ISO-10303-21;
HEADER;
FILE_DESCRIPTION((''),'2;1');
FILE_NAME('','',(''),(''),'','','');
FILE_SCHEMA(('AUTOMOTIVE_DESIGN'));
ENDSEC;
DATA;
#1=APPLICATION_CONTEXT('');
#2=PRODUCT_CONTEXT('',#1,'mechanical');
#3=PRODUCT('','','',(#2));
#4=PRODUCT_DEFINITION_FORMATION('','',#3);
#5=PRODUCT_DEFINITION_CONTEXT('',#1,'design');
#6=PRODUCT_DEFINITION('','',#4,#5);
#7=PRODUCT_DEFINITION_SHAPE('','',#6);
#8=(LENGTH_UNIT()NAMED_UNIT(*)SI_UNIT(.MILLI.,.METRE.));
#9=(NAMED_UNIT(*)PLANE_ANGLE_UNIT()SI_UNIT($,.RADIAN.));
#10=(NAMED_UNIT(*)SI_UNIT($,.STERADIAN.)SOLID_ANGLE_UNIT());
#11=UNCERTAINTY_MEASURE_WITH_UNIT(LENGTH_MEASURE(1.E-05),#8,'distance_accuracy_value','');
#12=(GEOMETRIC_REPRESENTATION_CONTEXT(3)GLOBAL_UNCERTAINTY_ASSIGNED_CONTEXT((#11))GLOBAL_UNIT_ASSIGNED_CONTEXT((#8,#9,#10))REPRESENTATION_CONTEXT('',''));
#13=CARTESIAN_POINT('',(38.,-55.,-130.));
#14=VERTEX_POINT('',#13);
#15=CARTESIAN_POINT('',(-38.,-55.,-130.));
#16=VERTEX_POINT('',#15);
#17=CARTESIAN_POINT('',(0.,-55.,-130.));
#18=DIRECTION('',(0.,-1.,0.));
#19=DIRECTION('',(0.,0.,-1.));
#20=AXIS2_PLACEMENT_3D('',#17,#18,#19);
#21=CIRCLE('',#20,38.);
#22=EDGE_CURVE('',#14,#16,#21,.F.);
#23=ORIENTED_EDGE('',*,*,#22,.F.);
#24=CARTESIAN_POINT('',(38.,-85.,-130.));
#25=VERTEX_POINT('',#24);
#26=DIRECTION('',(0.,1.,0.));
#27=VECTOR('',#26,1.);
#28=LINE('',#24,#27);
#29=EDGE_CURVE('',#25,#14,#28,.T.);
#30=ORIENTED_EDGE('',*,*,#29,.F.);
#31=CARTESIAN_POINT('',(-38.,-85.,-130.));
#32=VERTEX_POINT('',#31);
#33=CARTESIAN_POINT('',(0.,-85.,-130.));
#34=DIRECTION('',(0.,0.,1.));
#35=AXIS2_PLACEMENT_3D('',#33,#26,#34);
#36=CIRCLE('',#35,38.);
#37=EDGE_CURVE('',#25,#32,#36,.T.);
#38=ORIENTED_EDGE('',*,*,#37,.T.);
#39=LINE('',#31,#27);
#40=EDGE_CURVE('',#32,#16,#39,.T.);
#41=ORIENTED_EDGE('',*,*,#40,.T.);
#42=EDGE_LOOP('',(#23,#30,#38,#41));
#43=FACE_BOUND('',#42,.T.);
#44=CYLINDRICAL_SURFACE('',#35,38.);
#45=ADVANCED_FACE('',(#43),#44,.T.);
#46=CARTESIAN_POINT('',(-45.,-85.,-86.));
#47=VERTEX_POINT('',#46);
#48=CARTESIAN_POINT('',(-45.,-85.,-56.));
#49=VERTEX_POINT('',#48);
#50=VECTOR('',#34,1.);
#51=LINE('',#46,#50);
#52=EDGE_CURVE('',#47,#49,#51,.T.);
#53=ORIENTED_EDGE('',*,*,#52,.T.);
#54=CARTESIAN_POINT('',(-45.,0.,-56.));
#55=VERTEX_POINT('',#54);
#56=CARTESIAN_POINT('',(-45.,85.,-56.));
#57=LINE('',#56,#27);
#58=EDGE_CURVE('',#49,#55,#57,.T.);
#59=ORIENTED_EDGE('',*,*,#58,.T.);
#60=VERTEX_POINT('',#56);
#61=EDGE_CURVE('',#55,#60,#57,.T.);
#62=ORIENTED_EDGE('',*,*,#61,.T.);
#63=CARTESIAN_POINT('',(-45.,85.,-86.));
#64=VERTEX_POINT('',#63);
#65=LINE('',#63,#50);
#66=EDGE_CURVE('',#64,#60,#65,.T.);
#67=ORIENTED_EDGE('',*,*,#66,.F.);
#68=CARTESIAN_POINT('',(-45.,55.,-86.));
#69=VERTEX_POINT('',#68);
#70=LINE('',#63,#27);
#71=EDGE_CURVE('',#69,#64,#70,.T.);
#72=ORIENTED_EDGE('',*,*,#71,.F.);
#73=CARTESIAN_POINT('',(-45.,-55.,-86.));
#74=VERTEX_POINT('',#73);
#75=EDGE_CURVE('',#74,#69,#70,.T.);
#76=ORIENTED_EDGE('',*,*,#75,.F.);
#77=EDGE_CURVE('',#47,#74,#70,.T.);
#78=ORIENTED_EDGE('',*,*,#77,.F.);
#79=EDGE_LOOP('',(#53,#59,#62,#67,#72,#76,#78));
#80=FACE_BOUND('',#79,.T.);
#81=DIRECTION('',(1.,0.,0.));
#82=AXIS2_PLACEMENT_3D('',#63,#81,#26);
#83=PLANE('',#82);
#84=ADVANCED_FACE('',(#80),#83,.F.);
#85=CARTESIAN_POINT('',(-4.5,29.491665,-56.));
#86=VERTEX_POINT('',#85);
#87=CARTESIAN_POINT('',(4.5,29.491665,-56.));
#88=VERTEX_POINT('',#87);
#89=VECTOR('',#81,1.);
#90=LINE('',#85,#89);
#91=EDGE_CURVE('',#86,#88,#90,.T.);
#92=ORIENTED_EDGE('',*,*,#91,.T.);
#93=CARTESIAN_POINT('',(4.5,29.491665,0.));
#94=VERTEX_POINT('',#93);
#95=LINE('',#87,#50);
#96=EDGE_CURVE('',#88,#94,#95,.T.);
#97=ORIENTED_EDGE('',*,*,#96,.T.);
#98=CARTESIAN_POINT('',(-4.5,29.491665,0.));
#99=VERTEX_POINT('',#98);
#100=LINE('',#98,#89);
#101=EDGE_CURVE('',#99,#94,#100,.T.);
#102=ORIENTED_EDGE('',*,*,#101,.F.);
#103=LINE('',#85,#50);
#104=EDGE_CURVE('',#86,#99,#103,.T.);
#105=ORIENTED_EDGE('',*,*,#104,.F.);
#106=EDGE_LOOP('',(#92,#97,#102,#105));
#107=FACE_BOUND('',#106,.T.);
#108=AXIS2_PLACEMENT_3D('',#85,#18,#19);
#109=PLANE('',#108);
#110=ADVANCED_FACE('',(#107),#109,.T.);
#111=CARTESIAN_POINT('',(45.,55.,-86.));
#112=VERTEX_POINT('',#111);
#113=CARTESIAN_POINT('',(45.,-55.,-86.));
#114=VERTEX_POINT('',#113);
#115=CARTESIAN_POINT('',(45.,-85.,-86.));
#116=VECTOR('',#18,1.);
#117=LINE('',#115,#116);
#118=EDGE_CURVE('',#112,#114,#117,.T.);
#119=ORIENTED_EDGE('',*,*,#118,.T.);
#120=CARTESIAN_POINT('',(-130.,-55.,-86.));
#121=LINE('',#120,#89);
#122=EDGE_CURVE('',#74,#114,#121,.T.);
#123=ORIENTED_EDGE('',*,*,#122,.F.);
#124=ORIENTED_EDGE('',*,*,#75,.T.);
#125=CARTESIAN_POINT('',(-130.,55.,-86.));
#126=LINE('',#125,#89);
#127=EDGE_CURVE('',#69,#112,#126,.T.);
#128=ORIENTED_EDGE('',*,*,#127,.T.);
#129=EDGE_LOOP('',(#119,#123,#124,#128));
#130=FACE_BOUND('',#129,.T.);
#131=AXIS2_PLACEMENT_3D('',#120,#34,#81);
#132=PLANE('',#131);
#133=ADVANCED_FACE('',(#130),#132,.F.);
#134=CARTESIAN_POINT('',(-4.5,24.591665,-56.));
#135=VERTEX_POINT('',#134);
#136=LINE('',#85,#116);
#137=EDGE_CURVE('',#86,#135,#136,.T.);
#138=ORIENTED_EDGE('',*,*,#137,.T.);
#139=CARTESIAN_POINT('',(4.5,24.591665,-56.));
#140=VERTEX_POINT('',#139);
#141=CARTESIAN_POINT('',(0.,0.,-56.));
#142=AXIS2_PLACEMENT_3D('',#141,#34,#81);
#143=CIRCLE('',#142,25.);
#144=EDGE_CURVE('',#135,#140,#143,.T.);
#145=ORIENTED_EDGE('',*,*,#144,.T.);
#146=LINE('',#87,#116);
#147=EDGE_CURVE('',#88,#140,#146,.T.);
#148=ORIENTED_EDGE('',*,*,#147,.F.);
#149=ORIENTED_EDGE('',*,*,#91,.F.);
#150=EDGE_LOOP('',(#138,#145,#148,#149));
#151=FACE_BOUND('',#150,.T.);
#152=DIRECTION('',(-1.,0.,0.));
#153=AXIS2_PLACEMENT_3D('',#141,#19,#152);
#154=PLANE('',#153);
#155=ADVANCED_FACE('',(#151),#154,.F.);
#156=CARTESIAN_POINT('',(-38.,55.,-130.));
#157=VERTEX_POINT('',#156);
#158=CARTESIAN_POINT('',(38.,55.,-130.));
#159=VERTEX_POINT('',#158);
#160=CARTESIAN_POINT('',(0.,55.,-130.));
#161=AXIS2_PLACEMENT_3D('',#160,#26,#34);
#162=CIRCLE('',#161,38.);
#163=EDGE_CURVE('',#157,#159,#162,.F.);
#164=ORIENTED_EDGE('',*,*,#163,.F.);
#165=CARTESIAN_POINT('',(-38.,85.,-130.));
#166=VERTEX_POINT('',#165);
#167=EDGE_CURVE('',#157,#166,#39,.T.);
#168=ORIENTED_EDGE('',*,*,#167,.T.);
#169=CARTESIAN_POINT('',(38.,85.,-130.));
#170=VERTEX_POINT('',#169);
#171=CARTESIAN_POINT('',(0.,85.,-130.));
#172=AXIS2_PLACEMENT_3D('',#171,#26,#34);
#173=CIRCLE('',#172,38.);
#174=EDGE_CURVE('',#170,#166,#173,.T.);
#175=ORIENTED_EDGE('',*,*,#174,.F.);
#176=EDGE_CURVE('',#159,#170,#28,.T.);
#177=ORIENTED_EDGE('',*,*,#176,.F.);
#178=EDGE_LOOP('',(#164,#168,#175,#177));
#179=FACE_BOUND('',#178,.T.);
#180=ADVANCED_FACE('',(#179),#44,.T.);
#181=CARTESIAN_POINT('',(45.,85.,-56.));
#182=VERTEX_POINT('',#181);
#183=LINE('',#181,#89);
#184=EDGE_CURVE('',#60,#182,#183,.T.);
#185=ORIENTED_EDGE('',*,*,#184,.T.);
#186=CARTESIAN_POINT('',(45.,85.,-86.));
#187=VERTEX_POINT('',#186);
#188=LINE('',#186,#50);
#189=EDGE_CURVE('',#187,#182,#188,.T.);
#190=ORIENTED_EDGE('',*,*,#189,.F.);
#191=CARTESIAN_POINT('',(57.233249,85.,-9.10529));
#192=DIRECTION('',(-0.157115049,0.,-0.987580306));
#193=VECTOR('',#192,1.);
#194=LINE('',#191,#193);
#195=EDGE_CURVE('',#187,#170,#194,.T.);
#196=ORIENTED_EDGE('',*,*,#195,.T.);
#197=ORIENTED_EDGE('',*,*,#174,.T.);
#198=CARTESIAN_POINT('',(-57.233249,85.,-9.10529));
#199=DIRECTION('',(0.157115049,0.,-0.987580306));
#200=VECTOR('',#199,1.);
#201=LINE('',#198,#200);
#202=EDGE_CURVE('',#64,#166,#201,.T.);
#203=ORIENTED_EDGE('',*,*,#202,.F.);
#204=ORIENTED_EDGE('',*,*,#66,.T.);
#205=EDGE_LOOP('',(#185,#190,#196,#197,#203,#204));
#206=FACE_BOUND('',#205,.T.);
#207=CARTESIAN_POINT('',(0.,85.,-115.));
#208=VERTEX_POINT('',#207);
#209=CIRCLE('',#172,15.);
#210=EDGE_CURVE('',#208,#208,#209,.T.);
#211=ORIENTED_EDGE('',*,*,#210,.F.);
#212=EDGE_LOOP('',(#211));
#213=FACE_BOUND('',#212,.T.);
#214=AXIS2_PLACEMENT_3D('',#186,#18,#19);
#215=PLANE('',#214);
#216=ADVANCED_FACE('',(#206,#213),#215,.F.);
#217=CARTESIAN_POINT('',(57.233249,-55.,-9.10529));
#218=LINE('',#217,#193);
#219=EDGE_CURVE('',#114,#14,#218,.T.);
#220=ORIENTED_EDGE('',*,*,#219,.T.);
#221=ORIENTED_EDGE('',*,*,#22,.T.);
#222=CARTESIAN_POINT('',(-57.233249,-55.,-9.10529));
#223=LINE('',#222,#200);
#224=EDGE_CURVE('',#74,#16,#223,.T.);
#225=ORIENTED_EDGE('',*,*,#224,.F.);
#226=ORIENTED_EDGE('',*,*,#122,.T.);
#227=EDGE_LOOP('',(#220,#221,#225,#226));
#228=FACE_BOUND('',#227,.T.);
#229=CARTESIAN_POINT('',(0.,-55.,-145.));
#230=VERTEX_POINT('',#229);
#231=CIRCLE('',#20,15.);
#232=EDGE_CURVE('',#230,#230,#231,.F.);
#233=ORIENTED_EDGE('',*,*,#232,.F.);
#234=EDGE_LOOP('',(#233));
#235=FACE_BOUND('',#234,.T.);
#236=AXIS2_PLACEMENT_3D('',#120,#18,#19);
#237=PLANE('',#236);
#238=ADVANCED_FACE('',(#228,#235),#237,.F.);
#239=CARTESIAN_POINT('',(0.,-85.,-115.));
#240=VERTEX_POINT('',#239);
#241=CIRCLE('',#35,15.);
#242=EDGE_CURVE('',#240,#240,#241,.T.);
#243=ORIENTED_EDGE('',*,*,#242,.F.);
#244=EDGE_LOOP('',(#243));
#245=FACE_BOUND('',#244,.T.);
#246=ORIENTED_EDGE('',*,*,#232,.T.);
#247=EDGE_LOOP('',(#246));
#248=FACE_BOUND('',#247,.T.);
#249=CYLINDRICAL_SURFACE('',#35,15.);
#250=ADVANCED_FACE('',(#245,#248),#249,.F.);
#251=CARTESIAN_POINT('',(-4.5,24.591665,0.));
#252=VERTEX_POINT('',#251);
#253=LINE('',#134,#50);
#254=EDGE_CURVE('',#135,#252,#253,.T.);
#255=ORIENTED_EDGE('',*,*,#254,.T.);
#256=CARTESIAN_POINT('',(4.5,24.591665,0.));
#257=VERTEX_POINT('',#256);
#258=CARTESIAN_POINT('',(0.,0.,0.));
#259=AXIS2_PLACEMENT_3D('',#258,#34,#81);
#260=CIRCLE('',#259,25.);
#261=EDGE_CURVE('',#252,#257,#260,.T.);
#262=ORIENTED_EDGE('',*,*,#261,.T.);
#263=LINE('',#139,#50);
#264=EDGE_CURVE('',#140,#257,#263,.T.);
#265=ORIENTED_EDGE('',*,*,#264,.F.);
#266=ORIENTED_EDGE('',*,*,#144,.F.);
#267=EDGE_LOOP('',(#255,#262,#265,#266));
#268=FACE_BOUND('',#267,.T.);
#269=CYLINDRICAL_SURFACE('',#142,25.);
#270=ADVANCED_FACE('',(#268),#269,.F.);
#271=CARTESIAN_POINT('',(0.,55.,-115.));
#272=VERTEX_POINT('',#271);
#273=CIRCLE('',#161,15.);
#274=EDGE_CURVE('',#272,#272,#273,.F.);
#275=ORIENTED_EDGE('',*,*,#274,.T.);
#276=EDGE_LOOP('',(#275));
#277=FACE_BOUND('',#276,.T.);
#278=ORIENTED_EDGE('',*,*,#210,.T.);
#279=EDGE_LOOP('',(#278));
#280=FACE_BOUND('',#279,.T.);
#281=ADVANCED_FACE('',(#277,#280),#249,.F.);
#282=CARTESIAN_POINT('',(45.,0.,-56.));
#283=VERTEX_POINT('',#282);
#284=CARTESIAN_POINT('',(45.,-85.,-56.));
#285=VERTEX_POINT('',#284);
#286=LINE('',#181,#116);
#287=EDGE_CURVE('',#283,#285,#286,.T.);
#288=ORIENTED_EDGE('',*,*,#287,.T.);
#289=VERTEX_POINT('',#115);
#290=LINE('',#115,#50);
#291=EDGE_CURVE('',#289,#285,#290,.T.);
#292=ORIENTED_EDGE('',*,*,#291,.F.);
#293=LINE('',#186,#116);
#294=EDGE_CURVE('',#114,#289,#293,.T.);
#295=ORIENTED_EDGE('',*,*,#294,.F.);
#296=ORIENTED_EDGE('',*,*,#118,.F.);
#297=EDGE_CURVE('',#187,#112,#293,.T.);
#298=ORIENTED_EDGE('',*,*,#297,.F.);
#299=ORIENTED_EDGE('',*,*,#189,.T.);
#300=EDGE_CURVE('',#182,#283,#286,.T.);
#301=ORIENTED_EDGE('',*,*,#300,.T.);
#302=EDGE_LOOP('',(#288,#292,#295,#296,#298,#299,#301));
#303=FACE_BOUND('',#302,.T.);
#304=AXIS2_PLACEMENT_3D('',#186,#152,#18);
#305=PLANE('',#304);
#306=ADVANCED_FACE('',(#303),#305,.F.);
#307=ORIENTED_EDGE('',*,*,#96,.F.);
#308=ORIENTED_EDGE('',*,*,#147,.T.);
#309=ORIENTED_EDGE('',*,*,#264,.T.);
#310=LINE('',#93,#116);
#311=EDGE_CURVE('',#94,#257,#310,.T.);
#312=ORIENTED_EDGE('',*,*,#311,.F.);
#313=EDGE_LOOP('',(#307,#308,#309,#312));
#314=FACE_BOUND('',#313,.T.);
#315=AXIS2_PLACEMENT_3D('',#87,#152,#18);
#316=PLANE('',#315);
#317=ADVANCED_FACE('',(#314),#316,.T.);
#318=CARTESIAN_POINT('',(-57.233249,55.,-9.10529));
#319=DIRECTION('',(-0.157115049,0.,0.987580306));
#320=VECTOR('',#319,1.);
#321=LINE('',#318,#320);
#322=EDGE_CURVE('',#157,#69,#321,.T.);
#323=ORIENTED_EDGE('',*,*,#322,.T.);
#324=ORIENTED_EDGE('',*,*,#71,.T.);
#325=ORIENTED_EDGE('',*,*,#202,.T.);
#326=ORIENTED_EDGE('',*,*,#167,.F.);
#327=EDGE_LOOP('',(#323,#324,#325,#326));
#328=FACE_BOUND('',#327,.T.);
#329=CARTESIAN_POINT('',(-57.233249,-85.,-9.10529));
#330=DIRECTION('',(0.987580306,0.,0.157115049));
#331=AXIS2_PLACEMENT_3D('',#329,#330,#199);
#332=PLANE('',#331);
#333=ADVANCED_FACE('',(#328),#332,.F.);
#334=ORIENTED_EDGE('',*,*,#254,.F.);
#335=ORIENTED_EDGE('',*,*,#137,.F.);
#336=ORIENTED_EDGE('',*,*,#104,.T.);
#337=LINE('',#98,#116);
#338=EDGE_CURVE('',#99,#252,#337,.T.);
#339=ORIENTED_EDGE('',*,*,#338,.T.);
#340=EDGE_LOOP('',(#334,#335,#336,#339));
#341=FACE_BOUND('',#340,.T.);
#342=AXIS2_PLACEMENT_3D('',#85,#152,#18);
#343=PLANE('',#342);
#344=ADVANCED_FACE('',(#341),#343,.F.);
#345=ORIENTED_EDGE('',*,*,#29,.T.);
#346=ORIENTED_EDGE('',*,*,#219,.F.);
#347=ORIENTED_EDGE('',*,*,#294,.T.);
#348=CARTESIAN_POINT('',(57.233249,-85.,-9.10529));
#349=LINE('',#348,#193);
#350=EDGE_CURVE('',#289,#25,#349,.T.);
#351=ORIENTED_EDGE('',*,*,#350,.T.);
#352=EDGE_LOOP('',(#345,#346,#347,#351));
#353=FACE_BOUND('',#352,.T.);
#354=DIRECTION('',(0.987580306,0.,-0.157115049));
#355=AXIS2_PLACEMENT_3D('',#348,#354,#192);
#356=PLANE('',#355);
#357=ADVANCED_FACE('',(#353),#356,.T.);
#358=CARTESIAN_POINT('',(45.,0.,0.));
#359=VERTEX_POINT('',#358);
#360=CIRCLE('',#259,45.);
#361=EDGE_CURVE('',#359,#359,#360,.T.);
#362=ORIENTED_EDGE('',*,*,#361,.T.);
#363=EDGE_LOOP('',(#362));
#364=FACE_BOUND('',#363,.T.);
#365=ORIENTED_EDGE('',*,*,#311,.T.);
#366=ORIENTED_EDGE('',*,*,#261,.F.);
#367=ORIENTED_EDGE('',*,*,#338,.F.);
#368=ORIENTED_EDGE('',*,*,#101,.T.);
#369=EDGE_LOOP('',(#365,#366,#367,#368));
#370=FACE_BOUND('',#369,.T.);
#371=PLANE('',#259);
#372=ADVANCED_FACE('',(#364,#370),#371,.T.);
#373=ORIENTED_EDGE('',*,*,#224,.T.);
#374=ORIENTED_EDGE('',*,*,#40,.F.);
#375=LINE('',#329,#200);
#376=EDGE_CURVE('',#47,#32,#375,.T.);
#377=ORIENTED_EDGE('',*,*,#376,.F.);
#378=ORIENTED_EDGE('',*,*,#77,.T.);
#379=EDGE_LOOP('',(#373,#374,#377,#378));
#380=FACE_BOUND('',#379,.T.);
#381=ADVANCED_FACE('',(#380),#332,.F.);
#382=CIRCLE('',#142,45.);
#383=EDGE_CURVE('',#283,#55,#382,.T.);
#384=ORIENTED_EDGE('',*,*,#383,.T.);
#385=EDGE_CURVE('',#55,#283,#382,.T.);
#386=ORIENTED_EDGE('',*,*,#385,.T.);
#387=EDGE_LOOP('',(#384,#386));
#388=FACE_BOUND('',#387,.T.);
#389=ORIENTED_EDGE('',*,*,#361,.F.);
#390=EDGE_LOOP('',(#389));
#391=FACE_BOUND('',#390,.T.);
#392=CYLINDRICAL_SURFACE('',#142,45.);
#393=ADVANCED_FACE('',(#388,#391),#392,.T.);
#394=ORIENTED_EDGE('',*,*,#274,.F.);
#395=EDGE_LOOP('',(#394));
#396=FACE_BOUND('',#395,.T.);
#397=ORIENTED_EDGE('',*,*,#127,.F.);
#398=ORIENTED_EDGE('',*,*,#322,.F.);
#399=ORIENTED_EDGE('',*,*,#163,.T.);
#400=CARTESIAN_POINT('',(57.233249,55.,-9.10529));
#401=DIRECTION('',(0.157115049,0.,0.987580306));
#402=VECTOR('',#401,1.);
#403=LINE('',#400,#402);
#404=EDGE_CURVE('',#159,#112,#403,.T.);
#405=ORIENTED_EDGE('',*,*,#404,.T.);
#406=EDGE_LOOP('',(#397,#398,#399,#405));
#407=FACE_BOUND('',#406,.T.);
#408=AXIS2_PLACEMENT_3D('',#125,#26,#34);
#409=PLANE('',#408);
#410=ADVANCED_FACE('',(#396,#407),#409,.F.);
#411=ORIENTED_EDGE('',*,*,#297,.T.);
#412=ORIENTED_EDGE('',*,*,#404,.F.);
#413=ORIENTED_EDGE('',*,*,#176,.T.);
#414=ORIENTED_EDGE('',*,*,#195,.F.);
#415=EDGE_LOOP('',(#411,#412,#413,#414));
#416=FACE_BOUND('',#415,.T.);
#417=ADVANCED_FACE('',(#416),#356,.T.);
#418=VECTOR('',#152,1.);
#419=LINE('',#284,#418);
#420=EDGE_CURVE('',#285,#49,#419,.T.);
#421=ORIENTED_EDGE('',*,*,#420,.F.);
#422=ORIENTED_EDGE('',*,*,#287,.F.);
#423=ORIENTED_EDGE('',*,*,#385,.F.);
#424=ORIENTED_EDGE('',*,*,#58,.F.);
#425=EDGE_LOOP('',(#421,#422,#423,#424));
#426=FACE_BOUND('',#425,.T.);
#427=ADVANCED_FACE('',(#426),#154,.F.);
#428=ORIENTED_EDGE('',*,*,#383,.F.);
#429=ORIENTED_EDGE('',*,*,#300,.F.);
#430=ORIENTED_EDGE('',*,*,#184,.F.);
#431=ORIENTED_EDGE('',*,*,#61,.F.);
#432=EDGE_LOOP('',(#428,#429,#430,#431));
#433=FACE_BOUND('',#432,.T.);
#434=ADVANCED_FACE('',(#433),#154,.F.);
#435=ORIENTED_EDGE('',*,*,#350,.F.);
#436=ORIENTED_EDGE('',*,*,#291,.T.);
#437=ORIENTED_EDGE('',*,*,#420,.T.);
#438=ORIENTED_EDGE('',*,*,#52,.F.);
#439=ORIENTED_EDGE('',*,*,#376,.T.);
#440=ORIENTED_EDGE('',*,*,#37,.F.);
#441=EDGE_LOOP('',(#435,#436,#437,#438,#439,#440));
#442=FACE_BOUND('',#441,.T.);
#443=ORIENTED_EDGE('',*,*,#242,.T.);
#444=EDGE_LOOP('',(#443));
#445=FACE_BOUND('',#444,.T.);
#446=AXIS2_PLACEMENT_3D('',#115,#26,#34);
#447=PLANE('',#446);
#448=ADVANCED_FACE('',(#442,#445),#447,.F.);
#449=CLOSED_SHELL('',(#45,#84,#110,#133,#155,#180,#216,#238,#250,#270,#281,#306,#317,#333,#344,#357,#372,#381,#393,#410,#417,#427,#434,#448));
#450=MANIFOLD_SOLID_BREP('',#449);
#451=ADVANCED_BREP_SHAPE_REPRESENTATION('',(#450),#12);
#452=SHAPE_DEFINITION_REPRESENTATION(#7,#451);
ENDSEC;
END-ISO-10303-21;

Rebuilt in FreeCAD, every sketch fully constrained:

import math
import FreeCAD as App
import Part
import Sketcher

V = App.Vector
Q = App.Units.Quantity

doc = App.newDocument("Part")
body = doc.addObject("PartDesign::Body", "Body")

# Sketch on XY plane
sketch1 = body.newObject("Sketcher::SketchObject", "Sketch")
sketch1.AttachmentSupport = (doc.getObject("XY_Plane"), [""])
sketch1.MapMode = "FlatFace"
sketch1.addGeometry([
    Part.Circle(V(0, 0, 0), V(0, 0, 1), 45),  # 0
    Part.LineSegment(V(-4.5, 24.6, 0), V(-4.5, 29.5, 0)),  # 1
    Part.LineSegment(V(-4.5, 29.5, 0), V(4.5, 29.5, 0)),  # 2
    Part.LineSegment(V(4.5, 29.5, 0), V(4.5, 24.6, 0)),  # 3
    Part.ArcOfCircle(Part.Circle(V(0, 0, 0), V(0, 0, 1), 25), math.radians(100), math.radians(440)),  # 4
], False)
sketch1.addConstraint([
    Sketcher.Constraint("Coincident", 1, 2, 2, 1),
    Sketcher.Constraint("Coincident", 2, 2, 3, 1),
    Sketcher.Constraint("Coincident", 3, 2, 4, 2),
    Sketcher.Constraint("Coincident", 4, 1, 1, 1),
    Sketcher.Constraint("Vertical", 1),
    Sketcher.Constraint("Horizontal", 2),
    Sketcher.Constraint("Vertical", 3),
    Sketcher.Constraint("Coincident", 0, 3, -1, 1),
    Sketcher.Constraint("Coincident", 4, 3, -1, 1),
    Sketcher.Constraint("Horizontal", 3, 2, 4, 1),
    Sketcher.Constraint("Diameter", 0, Q("90 mm")),
    Sketcher.Constraint("Radius", 4, Q("25 mm")),
    Sketcher.Constraint("DistanceX", 2, 1, 2, 2, Q("9 mm")),
    Sketcher.Constraint("DistanceY", 1, 1, 1, 2, Q("4.9 mm")),
])
pad1 = body.newObject("PartDesign::Pad", "Pad")
pad1.Profile = sketch1
pad1.Length = 56
pad1.Reversed = True

# Sketch on XY plane
sketch2 = body.newObject("Sketcher::SketchObject", "Sketch001")
sketch2.AttachmentSupport = (doc.getObject("XY_Plane"), [""])
sketch2.MapMode = "FlatFace"
sketch2.AttachmentOffset = App.Placement(V(0, 0, -56), App.Rotation())
sketch2.addGeometry([
    Part.LineSegment(V(45, 85, 0), V(45, -85, 0)),
    Part.LineSegment(V(45, -85, 0), V(-45, -85, 0)),
    Part.LineSegment(V(-45, -85, 0), V(-45, 85, 0)),
    Part.LineSegment(V(-45, 85, 0), V(45, 85, 0)),
], False)
sketch2.addConstraint([
    Sketcher.Constraint("Coincident", 0, 2, 1, 1),
    Sketcher.Constraint("Coincident", 1, 2, 2, 1),
    Sketcher.Constraint("Coincident", 2, 2, 3, 1),
    Sketcher.Constraint("Coincident", 3, 2, 0, 1),
    Sketcher.Constraint("Vertical", 0),
    Sketcher.Constraint("Horizontal", 1),
    Sketcher.Constraint("Vertical", 2),
    Sketcher.Constraint("Horizontal", 3),
    Sketcher.Constraint("Symmetric", 0, 2, 2, 2, -1, 1),
    Sketcher.Constraint("DistanceX", 1, 2, 1, 1, Q("90 mm")),
    Sketcher.Constraint("DistanceY", 0, 2, 0, 1, Q("170 mm")),
])
pad2 = body.newObject("PartDesign::Pad", "Pad001")
pad2.Profile = sketch2
pad2.Length = 30
pad2.Reversed = True

# Sketch on XZ plane
sketch3 = body.newObject("Sketcher::SketchObject", "Sketch002")
sketch3.AttachmentSupport = (doc.getObject("XZ_Plane"), [""])
sketch3.MapMode = "FlatFace"
sketch3.AttachmentOffset = App.Placement(V(0, 0, -85), App.Rotation())
sketch3.addGeometry([
    Part.LineSegment(V(45, -86, 0), V(38, -130, 0)),  # 0
    Part.ArcOfCircle(Part.Circle(V(0, -130, 0), V(0, 0, 1), 38), math.radians(180), math.radians(360)),  # 1
    Part.LineSegment(V(-38, -130, 0), V(-45, -86, 0)),  # 2
    Part.LineSegment(V(-45, -86, 0), V(45, -86, 0)),  # 3
    Part.Circle(V(0, -130, 0), V(0, 0, 1), 15),  # 4
], False)
sketch3.addConstraint([
    Sketcher.Constraint("Coincident", 0, 2, 1, 2),
    Sketcher.Constraint("Coincident", 1, 1, 2, 1),
    Sketcher.Constraint("Coincident", 2, 2, 3, 1),
    Sketcher.Constraint("Coincident", 3, 2, 0, 1),
    Sketcher.Constraint("Horizontal", 3),
    Sketcher.Constraint("Coincident", 4, 3, 1, 3),
    Sketcher.Constraint("Symmetric", 0, 2, 1, 1, -2),
    Sketcher.Constraint("Horizontal", 4, 3, 0, 2),
    Sketcher.Constraint("Equal", 0, 2),
    Sketcher.Constraint("Diameter", 4, Q("30 mm")),
    Sketcher.Constraint("Radius", 1, Q("38 mm")),
    Sketcher.Constraint("DistanceX", 3, 1, 3, 2, Q("90 mm")),
    Sketcher.Constraint("DistanceY", 1, 3, -1, 1, Q("130 mm")),
    Sketcher.Constraint("DistanceY", 2, 2, -1, 1, Q("86 mm")),
])
pad3 = body.newObject("PartDesign::Pad", "Pad002")
pad3.Profile = sketch3
pad3.Length = 170

# Sketch on YZ plane
sketch4 = body.newObject("Sketcher::SketchObject", "Sketch003")
sketch4.AttachmentSupport = (doc.getObject("YZ_Plane"), [""])
sketch4.MapMode = "FlatFace"
sketch4.addGeometry([
    Part.LineSegment(V(55, -86, 0), V(-55, -86, 0)),
    Part.LineSegment(V(-55, -86, 0), V(-55, -218, 0)),
    Part.LineSegment(V(-55, -218, 0), V(55, -218, 0)),
    Part.LineSegment(V(55, -218, 0), V(55, -86, 0)),
], False)
sketch4.addConstraint([
    Sketcher.Constraint("Coincident", 0, 2, 1, 1),
    Sketcher.Constraint("Coincident", 1, 2, 2, 1),
    Sketcher.Constraint("Coincident", 2, 2, 3, 1),
    Sketcher.Constraint("Coincident", 3, 2, 0, 1),
    Sketcher.Constraint("Horizontal", 0),
    Sketcher.Constraint("Vertical", 1),
    Sketcher.Constraint("Horizontal", 2),
    Sketcher.Constraint("Vertical", 3),
    Sketcher.Constraint("DistanceX", 0, 2, 0, 1, Q("110 mm")),
    Sketcher.Constraint("DistanceX", 0, 2, -1, 1, Q("55 mm")),
    Sketcher.Constraint("DistanceY", 0, 2, -1, 1, Q("86 mm")),
    Sketcher.Constraint("DistanceY", 1, 2, 1, 1, Q("132.381261 mm")),
])
pocket1 = body.newObject("PartDesign::Pocket", "Pocket")
pocket1.Profile = sketch4
pocket1.Length = 260
pocket1.Midplane = True

doc.recompute()
